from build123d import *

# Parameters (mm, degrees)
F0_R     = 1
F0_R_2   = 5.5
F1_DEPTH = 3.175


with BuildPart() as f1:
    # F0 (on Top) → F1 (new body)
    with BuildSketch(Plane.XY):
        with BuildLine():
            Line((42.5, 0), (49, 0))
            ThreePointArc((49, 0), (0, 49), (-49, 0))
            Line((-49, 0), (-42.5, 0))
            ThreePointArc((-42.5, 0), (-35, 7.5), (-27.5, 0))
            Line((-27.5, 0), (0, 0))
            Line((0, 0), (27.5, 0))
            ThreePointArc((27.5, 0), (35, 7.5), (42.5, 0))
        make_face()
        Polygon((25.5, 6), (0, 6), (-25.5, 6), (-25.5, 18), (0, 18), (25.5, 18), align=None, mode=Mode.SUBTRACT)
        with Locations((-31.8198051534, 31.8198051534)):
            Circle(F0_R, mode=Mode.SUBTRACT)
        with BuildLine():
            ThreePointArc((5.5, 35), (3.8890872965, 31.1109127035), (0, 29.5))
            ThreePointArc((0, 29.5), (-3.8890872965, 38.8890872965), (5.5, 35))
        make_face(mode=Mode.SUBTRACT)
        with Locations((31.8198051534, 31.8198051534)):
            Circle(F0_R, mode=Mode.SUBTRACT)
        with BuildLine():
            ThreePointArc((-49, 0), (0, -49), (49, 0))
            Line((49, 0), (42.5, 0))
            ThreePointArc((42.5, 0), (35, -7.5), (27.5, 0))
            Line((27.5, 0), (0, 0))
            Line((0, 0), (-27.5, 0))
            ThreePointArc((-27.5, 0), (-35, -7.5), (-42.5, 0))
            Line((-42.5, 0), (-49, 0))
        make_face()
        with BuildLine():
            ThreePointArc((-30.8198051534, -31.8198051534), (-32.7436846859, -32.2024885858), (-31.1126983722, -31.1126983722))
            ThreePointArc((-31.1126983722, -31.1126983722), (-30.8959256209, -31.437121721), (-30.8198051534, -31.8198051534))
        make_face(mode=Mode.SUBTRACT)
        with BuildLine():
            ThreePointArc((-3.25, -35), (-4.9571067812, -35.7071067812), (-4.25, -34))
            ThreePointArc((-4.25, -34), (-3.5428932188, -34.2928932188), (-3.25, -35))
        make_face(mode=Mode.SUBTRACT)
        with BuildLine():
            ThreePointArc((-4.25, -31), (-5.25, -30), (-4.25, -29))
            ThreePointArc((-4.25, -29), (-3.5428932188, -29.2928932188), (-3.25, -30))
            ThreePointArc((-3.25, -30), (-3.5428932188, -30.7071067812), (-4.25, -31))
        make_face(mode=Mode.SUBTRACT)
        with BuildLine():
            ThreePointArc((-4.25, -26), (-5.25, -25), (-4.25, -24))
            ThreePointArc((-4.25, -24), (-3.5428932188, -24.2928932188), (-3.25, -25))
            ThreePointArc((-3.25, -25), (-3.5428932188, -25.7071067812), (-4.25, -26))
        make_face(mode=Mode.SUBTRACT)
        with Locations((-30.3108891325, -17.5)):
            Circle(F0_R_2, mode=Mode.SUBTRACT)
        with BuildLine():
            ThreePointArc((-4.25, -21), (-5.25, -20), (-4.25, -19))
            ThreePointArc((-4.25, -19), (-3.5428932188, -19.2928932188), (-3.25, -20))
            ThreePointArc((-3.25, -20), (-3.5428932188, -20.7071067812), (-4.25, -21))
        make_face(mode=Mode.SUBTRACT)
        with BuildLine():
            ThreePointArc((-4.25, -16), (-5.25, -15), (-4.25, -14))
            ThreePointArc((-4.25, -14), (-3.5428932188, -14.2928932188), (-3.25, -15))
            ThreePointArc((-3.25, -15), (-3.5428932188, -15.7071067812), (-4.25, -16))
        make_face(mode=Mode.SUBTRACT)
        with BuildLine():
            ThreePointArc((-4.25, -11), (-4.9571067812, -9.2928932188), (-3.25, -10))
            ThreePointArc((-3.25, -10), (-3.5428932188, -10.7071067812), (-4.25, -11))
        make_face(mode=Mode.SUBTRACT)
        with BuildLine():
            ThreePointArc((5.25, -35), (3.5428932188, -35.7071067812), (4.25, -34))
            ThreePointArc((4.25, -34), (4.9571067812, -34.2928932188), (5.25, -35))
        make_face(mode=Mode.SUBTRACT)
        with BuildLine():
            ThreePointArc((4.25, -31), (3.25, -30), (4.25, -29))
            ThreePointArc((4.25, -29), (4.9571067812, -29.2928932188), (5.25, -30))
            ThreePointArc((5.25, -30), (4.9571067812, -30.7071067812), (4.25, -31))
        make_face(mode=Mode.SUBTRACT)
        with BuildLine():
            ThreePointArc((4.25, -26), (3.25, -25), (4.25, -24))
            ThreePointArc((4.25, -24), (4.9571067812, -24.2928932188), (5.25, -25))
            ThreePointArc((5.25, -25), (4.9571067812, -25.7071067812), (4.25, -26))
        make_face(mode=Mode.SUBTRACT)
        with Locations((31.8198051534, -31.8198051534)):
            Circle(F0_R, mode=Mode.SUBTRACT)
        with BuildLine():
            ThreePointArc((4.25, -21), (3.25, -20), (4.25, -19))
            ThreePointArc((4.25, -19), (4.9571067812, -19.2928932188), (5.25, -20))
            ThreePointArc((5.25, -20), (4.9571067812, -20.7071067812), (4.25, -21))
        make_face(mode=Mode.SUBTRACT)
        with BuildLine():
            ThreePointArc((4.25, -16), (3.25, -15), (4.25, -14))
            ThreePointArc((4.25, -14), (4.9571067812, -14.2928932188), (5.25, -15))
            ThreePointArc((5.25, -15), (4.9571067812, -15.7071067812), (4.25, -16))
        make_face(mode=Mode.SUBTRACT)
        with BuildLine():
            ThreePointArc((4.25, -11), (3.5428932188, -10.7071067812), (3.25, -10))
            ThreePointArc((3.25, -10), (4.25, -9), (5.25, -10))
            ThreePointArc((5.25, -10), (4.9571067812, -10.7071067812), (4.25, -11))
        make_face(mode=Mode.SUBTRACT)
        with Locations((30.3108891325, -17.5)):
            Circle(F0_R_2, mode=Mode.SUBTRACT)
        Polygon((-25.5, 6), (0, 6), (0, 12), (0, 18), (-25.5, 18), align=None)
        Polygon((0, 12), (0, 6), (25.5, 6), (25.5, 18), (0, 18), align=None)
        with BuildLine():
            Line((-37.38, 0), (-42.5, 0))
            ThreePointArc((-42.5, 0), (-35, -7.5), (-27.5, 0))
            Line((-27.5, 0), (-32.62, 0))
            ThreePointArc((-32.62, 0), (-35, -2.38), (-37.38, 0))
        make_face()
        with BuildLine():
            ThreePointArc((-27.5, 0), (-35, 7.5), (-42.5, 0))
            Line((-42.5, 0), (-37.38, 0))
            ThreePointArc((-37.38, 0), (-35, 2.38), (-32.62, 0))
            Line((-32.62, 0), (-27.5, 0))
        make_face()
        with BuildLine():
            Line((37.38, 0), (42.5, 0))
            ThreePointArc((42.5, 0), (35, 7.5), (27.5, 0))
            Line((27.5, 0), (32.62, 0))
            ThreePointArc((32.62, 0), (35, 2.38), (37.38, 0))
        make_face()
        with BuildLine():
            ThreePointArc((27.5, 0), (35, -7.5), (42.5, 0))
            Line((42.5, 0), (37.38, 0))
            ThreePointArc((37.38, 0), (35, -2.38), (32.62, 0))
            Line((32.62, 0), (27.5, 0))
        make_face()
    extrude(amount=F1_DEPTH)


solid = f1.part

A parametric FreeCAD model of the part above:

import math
import FreeCAD as App
import Part
import Sketcher

V = App.Vector
Q = App.Units.Quantity

doc = App.newDocument("Part")
body = doc.addObject("PartDesign::Body", "Body")

# Sketch on XY plane
sketch1 = body.newObject("Sketcher::SketchObject", "Sketch")
sketch1.AttachmentSupport = (doc.getObject("XY_Plane"), [""])
sketch1.MapMode = "FlatFace"
sketch1.addGeometry([
    Part.Circle(V(0, 0, 0), V(0, 0, 1), 49),  # 0
    Part.ArcOfCircle(Part.Circle(V(-31.8, -31.8, 0), V(0, 0, 1), 1), math.radians(0), math.radians(45)),  # 1
    Part.ArcOfCircle(Part.Circle(V(-31.8, -31.8, 0), V(0, 0, 1), 1), math.radians(45), math.radians(360)),  # 2
    Part.Circle(V(-30.3, -17.5, 0), V(0, 0, 1), 5.5),  # 3
    Part.ArcOfCircle(Part.Circle(V(-4.2, -35, 0), V(0, 0, 1), 1), math.radians(0), math.radians(90)),  # 4
    Part.ArcOfCircle(Part.Circle(V(-4.2, -35, 0), V(0, 0, 1), 1), math.radians(90), math.radians(360)),  # 5
    Part.ArcOfCircle(Part.Circle(V(-4.2, -30, 0), V(0, 0, 1), 1), math.radians(-90), math.radians(0)),  # 6
    Part.ArcOfCircle(Part.Circle(V(-4.2, -30, 0), V(0, 0, 1), 1), math.radians(90), math.radians(270)),  # 7
    Part.ArcOfCircle(Part.Circle(V(-4.2, -30, 0), V(0, 0, 1), 1), math.radians(0), math.radians(90)),  # 8
    Part.ArcOfCircle(Part.Circle(V(-4.2, -25, 0), V(0, 0, 1), 1), math.radians(-90), math.radians(0)),  # 9
    Part.ArcOfCircle(Part.Circle(V(-4.2, -25, 0), V(0, 0, 1), 1), math.radians(90), math.radians(270)),  # 10
    Part.ArcOfCircle(Part.Circle(V(-4.2, -25, 0), V(0, 0, 1), 1), math.radians(0), math.radians(90)),  # 11
    Part.ArcOfCircle(Part.Circle(V(-4.2, -20, 0), V(0, 0, 1), 1), math.radians(-90), math.radians(0)),  # 12
    Part.ArcOfCircle(Part.Circle(V(-4.2, -20, 0), V(0, 0, 1), 1), math.radians(90), math.radians(270)),  # 13
    Part.ArcOfCircle(Part.Circle(V(-4.2, -20, 0), V(0, 0, 1), 1), math.radians(0), math.radians(90)),  # 14
    Part.Circle(V(-35, 0, 0), V(0, 0, 1), 2.4),  # 15
    Part.ArcOfCircle(Part.Circle(V(-4.2, -15, 0), V(0, 0, 1), 1), math.radians(-90), math.radians(0)),  # 16
    Part.ArcOfCircle(Part.Circle(V(-4.2, -15, 0), V(0, 0, 1), 1), math.radians(90), math.radians(270)),  # 17
    Part.ArcOfCircle(Part.Circle(V(-4.2, -15, 0), V(0, 0, 1), 1), math.radians(0), math.radians(90)),  # 18
    Part.ArcOfCircle(Part.Circle(V(-4.2, -10, 0), V(0, 0, 1), 1), math.radians(-90), math.radians(0)),  # 19
    Part.ArcOfCircle(Part.Circle(V(-4.2, -10, 0), V(0, 0, 1), 1), math.radians(0), math.radians(270)),  # 20
    Part.ArcOfCircle(Part.Circle(V(4.2, -35, 0), V(0, 0, 1), 1), math.radians(0), math.radians(90)),  # 21
    Part.ArcOfCircle(Part.Circle(V(4.2, -35, 0), V(0, 0, 1), 1), math.radians(90), math.radians(360)),  # 22
    Part.ArcOfCircle(Part.Circle(V(4.2, -30, 0), V(0, 0, 1), 1), math.radians(-90), math.radians(0)),  # 23
    Part.ArcOfCircle(Part.Circle(V(4.2, -30, 0), V(0, 0, 1), 1), math.radians(90), math.radians(270)),  # 24
    Part.ArcOfCircle(Part.Circle(V(4.2, -30, 0), V(0, 0, 1), 1), math.radians(0), math.radians(90)),  # 25
    Part.ArcOfCircle(Part.Circle(V(4.2, -25, 0), V(0, 0, 1), 1), math.radians(-90), math.radians(0)),  # 26
    Part.ArcOfCircle(Part.Circle(V(4.2, -25, 0), V(0, 0, 1), 1), math.radians(90), math.radians(270)),  # 27
    Part.ArcOfCircle(Part.Circle(V(4.2, -25, 0), V(0, 0, 1), 1), math.radians(0), math.radians(90)),  # 28
    Part.ArcOfCircle(Part.Circle(V(4.2, -20, 0), V(0, 0, 1), 1), math.radians(-90), math.radians(0)),  # 29
    Part.ArcOfCircle(Part.Circle(V(4.2, -20, 0), V(0, 0, 1), 1), math.radians(90), math.radians(270)),  # 30
    Part.ArcOfCircle(Part.Circle(V(4.2, -20, 0), V(0, 0, 1), 1), math.radians(0), math.radians(90)),  # 31
    Part.Circle(V(31.8, -31.8, 0), V(0, 0, 1), 1),  # 32
    Part.Circle(V(30.3, -17.5, 0), V(0, 0, 1), 5.5),  # 33
    Part.ArcOfCircle(Part.Circle(V(4.2, -15, 0), V(0, 0, 1), 1), math.radians(-90), math.radians(0)),  # 34
    Part.ArcOfCircle(Part.Circle(V(4.2, -15, 0), V(0, 0, 1), 1), math.radians(90), math.radians(270)),  # 35
    Part.ArcOfCircle(Part.Circle(V(4.2, -15, 0), V(0, 0, 1), 1), math.radians(0), math.radians(90)),  # 36
    Part.ArcOfCircle(Part.Circle(V(4.2, -10, 0), V(0, 0, 1), 1), math.radians(-90), math.radians(0)),  # 37
    Part.ArcOfCircle(Part.Circle(V(4.2, -10, 0), V(0, 0, 1), 1), math.radians(180), math.radians(270)),  # 38
    Part.ArcOfCircle(Part.Circle(V(4.2, -10, 0), V(0, 0, 1), 1), math.radians(0), math.radians(180)),  # 39
    Part.Circle(V(35, 0, 0), V(0, 0, 1), 2.4),  # 40
    Part.Circle(V(-31.8, 31.8, 0), V(0, 0, 1), 1),  # 41
    Part.ArcOfCircle(Part.Circle(V(0, 35, 0), V(0, 0, 1), 5.5), math.radians(0), math.radians(270)),  # 42
    Part.ArcOfCircle(Part.Circle(V(0, 35, 0), V(0, 0, 1), 5.5), math.radians(-90), math.radians(0)),  # 43
    Part.Circle(V(31.8, 31.8, 0), V(0, 0, 1), 1),  # 44
], False)
sketch1.addConstraint([
    Sketcher.Constraint("Tangent", 1, 1, 2, 2),
    Sketcher.Constraint("Coincident", 2, 1, 1, 2),
    Sketcher.Constraint("Tangent", 4, 1, 5, 2),
    Sketcher.Constraint("Coincident", 5, 1, 4, 2),
    Sketcher.Constraint("Tangent", 6, 1, 7, 2),
    Sketcher.Constraint("Tangent", 7, 1, 8, 2),
    Sketcher.Constraint("Tangent", 8, 1, 6, 2),
    Sketcher.Constraint("Tangent", 9, 1, 10, 2),
    Sketcher.Constraint("Tangent", 10, 1, 11, 2),
    Sketcher.Constraint("Tangent", 11, 1, 9, 2),
    Sketcher.Constraint("Tangent", 12, 1, 13, 2),
    Sketcher.Constraint("Tangent", 13, 1, 14, 2),
    Sketcher.Constraint("Tangent", 14, 1, 12, 2),
    Sketcher.Constraint("Tangent", 16, 1, 17, 2),
    Sketcher.Constraint("Tangent", 17, 1, 18, 2),
    Sketcher.Constraint("Tangent", 18, 1, 16, 2),
    Sketcher.Constraint("Tangent", 19, 1, 20, 2),
    Sketcher.Constraint("Coincident", 20, 1, 19, 2),
    Sketcher.Constraint("Tangent", 21, 1, 22, 2),
    Sketcher.Constraint("Coincident", 22, 1, 21, 2),
    Sketcher.Constraint("Tangent", 23, 1, 24, 2),
    Sketcher.Constraint("Tangent", 24, 1, 25, 2),
    Sketcher.Constraint("Tangent", 25, 1, 23, 2),
    Sketcher.Constraint("Tangent", 26, 1, 27, 2),
    Sketcher.Constraint("Tangent", 27, 1, 28, 2),
    Sketcher.Constraint("Tangent", 28, 1, 26, 2),
    Sketcher.Constraint("Tangent", 29, 1, 30, 2),
    Sketcher.Constraint("Tangent", 30, 1, 31, 2),
    Sketcher.Constraint("Tangent", 31, 1, 29, 2),
    Sketcher.Constraint("Tangent", 34, 1, 35, 2),
    Sketcher.Constraint("Tangent", 35, 1, 36, 2),
    Sketcher.Constraint("Tangent", 36, 1, 34, 2),
    Sketcher.Constraint("Tangent", 37, 1, 38, 2),
    Sketcher.Constraint("Tangent", 38, 1, 39, 2),
    Sketcher.Constraint("Tangent", 39, 1, 37, 2),
    Sketcher.Constraint("Tangent", 42, 1, 43, 2),
    Sketcher.Constraint("Coincident", 43, 1, 42, 2),
    Sketcher.Constraint("Coincident", 0, 3, -1, 1),
    Sketcher.Constraint("Equal", 2, 4),
    Sketcher.Constraint("Equal", 5, 6),
    Sketcher.Constraint("Equal", 8, 9),
    Sketcher.Constraint("Equal", 11, 12),
    Sketcher.Constraint("Equal", 14, 16),
    Sketcher.Constraint("Equal", 18, 19),
    Sketcher.Constraint("Equal", 20, 21),
    Sketcher.Constraint("Equal", 22, 23),
    Sketcher.Constraint("Equal", 25, 26),
    Sketcher.Constraint("Equal", 28, 29),
    Sketcher.Constraint("Equal", 31, 32),
    Sketcher.Constraint("Equal", 3, 33),
    Sketcher.Constraint("Equal", 32, 34),
    Sketcher.Constraint("Equal", 36, 37),
    Sketcher.Constraint("Equal", 15, 40),
    Sketcher.Constraint("Equal", 39, 41),
    Sketcher.Constraint("Equal", 33, 42),
    Sketcher.Constraint("Equal", 41, 44),
    Sketcher.Constraint("Symmetric", 15, 3, 40, 3, -1, 1),
    Sketcher.Constraint("Symmetric", 32, 3, 41, 3, -1, 1),
    Sketcher.Constraint("Symmetric", 1, 3, 44, 3, -1, 1),
    Sketcher.Constraint("Symmetric", 4, 3, 21, 3, -2),
    Sketcher.Constraint("Symmetric", 6, 3, 23, 3, -2),
    Sketcher.Constraint("Symmetric", 9, 3, 26, 3, -2),
    Sketcher.Constraint("Symmetric", 12, 3, 29, 3, -2),
    Sketcher.Constraint("Symmetric", 1, 3, 32, 3, -2),
    Sketcher.Constraint("Symmetric", 3, 3, 33, 3, -2),
    Sketcher.Constraint("Symmetric", 16, 3, 34, 3, -2),
    Sketcher.Constraint("Symmetric", 19, 3, 37, 3, -2),
    Sketcher.Constraint("PointOnObject", 15, 3, -1),
    Sketcher.Constraint("PointOnObject", 42, 3, -2),
    Sketcher.Constraint("PointOnObject", 43, 1, -2),
    Sketcher.Constraint("Horizontal", 32, 3, 1, 1),
    Sketcher.Constraint("Horizontal", 22, 3, 4, 1),
    Sketcher.Constraint("Horizontal", 25, 3, 8, 1),
    Sketcher.Constraint("Horizontal", 28, 3, 11, 1),
    Sketcher.Constraint("Horizontal", 31, 3, 14, 1),
    Sketcher.Constraint("Horizontal", 36, 3, 18, 1),
    Sketcher.Constraint("Horizontal", 39, 3, 20, 1),
    Sketcher.Constraint("Horizontal", 4, 1, 21, 1),
    Sketcher.Constraint("Horizontal", 8, 1, 25, 1),
    Sketcher.Constraint("Horizontal", 11, 1, 28, 1),
    Sketcher.Constraint("Horizontal", 14, 1, 31, 1),
    Sketcher.Constraint("Horizontal", 18, 1, 36, 1),
    Sketcher.Constraint("Horizontal", 20, 1, 38, 1),
    Sketcher.Constraint("Horizontal", 38, 1, 39, 1),
    Sketcher.Constraint("Horizontal", 43, 3, 42, 1),
    Sketcher.Constraint("Vertical", 5, 3, 6, 3),
    Sketcher.Constraint("Vertical", 8, 3, 9, 3),
    Sketcher.Constraint("Vertical", 11, 3, 12, 3),
    Sketcher.Constraint("Vertical", 14, 3, 16, 3),
    Sketcher.Constraint("Vertical", 18, 3, 19, 3),
    Sketcher.Constraint("Vertical", 20, 3, 5, 1),
    Sketcher.Constraint("Vertical", 5, 1, 6, 1),
    Sketcher.Constraint("Vertical", 6, 1, 7, 1),
    Sketcher.Constraint("Vertical", 7, 1, 9, 1),
    Sketcher.Constraint("Vertical", 9, 1, 10, 1),
    Sketcher.Constraint("Vertical", 10, 1, 12, 1),
    Sketcher.Constraint("Vertical", 12, 1, 13, 1),
    Sketcher.Constraint("Vertical", 13, 1, 16, 1),
    Sketcher.Constraint("Vertical", 16, 1, 17, 1),
    Sketcher.Constraint("Vertical", 17, 1, 19, 1),
    Sketcher.Constraint("Vertical", 39, 3, 22, 1),
    Sketcher.Constraint("Vertical", 22, 1, 23, 1),
    Sketcher.Constraint("Vertical", 23, 1, 24, 1),
    Sketcher.Constraint("Vertical", 24, 1, 26, 1),
    Sketcher.Constraint("Vertical", 26, 1, 27, 1),
    Sketcher.Constraint("Vertical", 27, 1, 29, 1),
    Sketcher.Constraint("Vertical", 29, 1, 30, 1),
    Sketcher.Constraint("Vertical", 30, 1, 34, 1),
    Sketcher.Constraint("Vertical", 34, 1, 35, 1),
    Sketcher.Constraint("Vertical", 35, 1, 37, 1),
    Sketcher.Constraint("Diameter", 0, Q("98 mm")),
    Sketcher.Constraint("Diameter", 3, Q("11 mm")),
    Sketcher.Constraint("Diameter", 32, Q("2 mm")),
    Sketcher.Constraint("Diameter", 15, Q("4.76 mm")),
    Sketcher.Constraint("DistanceY", 4, 3, -1, 1, Q("35 mm")),
    Sketcher.Constraint("DistanceY", 6, 3, -1, 1, Q("30 mm")),
    Sketcher.Constraint("DistanceY", 9, 3, -1, 1, Q("25 mm")),
    Sketcher.Constraint("DistanceY", 12, 3, -1, 1, Q("20 mm")),
    Sketcher.Constraint("DistanceX", 15, 3, -1, 1, Q("35 mm")),
    Sketcher.Constraint("DistanceY", 16, 3, -1, 1, Q("15 mm")),
    Sketcher.Constraint("DistanceY", 19, 3, -1, 1, Q("10 mm")),
    Sketcher.Constraint("DistanceY", -1, 1, 42, 3, Q("35 mm")),
    Sketcher.Constraint("DistanceY", 3, 3, -1, 1, Q("17.5 mm")),
    Sketcher.Constraint("DistanceX", 4, 3, -1, 1, Q("4.25 mm")),
    Sketcher.Constraint("DistanceX", 2, 1, -1, 1, Q("31.112698 mm")),
    Sketcher.Constraint("DistanceY", 2, 1, -1, 1, Q("31.112698 mm")),
    Sketcher.Constraint("DistanceX", 3, 3, -1, 1, Q("30.310889 mm")),
    Sketcher.Constraint("DistanceX", 1, 3, -1, 1, Q("31.819805 mm")),
])
pad1 = body.newObject("PartDesign::Pad", "Pad")
pad1.Profile = sketch1
pad1.Length = 3.175

doc.recompute()
